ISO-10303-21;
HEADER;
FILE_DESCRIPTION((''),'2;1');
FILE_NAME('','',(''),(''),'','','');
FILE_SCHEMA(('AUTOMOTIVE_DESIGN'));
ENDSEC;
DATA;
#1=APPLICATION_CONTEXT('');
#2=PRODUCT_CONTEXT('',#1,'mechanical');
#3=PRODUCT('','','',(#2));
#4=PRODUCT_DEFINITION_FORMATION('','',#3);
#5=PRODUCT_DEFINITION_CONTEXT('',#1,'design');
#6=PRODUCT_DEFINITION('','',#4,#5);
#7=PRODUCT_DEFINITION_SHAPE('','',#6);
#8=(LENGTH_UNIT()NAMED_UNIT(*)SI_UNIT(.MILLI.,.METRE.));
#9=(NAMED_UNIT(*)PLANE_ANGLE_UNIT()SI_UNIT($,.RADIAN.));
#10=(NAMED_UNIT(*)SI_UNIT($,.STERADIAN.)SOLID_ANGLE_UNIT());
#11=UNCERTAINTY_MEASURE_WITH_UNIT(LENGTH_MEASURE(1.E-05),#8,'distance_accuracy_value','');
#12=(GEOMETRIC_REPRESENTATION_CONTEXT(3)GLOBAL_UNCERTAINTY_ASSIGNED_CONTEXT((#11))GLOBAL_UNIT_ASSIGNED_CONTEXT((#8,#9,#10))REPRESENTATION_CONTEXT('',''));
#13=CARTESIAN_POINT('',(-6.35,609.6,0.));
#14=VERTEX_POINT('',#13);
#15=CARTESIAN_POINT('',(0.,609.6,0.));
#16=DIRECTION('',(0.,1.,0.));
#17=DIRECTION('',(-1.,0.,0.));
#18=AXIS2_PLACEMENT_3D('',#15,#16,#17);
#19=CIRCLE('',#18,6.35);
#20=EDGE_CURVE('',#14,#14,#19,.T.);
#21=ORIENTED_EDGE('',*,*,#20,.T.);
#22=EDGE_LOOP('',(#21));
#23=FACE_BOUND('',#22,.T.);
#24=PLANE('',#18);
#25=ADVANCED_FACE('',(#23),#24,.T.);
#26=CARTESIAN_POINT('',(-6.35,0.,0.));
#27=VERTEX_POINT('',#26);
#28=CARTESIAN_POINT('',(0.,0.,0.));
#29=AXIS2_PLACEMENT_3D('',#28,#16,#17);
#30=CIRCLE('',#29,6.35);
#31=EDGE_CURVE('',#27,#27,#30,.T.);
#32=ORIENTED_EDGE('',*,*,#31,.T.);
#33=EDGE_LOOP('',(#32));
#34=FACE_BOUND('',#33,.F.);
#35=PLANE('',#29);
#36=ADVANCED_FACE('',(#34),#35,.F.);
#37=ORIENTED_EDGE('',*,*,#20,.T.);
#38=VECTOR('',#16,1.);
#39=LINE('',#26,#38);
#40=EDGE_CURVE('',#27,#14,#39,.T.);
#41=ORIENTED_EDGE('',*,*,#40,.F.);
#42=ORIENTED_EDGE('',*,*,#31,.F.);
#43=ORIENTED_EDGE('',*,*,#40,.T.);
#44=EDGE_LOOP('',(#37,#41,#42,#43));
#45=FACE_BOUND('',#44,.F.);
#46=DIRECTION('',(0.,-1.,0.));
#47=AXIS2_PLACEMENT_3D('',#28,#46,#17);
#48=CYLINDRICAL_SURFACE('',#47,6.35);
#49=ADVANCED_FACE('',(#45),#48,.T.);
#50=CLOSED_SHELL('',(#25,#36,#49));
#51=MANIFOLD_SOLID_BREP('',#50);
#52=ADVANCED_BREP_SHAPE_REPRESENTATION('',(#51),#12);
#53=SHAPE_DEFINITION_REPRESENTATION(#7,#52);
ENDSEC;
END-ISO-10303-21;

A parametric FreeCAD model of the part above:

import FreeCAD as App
import Part
import Sketcher
from FreeCAD import Vector
Q = App.Units.Quantity

doc = App.newDocument("Part")
body = doc.addObject("PartDesign::Body", "Body")

# Sketch on XZ plane
sketch1 = body.newObject("Sketcher::SketchObject", "Sketch")
sketch1.AttachmentSupport = (doc.getObject("XZ_Plane"), [""])
sketch1.MapMode = "FlatFace"
sketch1.addGeometry(Part.Circle(Vector(0, 0, 0), Vector(0, 0, 1), 6.35), False)
sketch1.addConstraint([
    Sketcher.Constraint("Coincident", 0, 3, -1, 1),
    Sketcher.Constraint("Diameter", 0, Q("0.5 in")),
])
pad1 = body.newObject("PartDesign::Pad", "Pad")
pad1.Profile = sketch1
pad1.Length = Q("24 in")
pad1.Reversed = True

doc.recompute()
